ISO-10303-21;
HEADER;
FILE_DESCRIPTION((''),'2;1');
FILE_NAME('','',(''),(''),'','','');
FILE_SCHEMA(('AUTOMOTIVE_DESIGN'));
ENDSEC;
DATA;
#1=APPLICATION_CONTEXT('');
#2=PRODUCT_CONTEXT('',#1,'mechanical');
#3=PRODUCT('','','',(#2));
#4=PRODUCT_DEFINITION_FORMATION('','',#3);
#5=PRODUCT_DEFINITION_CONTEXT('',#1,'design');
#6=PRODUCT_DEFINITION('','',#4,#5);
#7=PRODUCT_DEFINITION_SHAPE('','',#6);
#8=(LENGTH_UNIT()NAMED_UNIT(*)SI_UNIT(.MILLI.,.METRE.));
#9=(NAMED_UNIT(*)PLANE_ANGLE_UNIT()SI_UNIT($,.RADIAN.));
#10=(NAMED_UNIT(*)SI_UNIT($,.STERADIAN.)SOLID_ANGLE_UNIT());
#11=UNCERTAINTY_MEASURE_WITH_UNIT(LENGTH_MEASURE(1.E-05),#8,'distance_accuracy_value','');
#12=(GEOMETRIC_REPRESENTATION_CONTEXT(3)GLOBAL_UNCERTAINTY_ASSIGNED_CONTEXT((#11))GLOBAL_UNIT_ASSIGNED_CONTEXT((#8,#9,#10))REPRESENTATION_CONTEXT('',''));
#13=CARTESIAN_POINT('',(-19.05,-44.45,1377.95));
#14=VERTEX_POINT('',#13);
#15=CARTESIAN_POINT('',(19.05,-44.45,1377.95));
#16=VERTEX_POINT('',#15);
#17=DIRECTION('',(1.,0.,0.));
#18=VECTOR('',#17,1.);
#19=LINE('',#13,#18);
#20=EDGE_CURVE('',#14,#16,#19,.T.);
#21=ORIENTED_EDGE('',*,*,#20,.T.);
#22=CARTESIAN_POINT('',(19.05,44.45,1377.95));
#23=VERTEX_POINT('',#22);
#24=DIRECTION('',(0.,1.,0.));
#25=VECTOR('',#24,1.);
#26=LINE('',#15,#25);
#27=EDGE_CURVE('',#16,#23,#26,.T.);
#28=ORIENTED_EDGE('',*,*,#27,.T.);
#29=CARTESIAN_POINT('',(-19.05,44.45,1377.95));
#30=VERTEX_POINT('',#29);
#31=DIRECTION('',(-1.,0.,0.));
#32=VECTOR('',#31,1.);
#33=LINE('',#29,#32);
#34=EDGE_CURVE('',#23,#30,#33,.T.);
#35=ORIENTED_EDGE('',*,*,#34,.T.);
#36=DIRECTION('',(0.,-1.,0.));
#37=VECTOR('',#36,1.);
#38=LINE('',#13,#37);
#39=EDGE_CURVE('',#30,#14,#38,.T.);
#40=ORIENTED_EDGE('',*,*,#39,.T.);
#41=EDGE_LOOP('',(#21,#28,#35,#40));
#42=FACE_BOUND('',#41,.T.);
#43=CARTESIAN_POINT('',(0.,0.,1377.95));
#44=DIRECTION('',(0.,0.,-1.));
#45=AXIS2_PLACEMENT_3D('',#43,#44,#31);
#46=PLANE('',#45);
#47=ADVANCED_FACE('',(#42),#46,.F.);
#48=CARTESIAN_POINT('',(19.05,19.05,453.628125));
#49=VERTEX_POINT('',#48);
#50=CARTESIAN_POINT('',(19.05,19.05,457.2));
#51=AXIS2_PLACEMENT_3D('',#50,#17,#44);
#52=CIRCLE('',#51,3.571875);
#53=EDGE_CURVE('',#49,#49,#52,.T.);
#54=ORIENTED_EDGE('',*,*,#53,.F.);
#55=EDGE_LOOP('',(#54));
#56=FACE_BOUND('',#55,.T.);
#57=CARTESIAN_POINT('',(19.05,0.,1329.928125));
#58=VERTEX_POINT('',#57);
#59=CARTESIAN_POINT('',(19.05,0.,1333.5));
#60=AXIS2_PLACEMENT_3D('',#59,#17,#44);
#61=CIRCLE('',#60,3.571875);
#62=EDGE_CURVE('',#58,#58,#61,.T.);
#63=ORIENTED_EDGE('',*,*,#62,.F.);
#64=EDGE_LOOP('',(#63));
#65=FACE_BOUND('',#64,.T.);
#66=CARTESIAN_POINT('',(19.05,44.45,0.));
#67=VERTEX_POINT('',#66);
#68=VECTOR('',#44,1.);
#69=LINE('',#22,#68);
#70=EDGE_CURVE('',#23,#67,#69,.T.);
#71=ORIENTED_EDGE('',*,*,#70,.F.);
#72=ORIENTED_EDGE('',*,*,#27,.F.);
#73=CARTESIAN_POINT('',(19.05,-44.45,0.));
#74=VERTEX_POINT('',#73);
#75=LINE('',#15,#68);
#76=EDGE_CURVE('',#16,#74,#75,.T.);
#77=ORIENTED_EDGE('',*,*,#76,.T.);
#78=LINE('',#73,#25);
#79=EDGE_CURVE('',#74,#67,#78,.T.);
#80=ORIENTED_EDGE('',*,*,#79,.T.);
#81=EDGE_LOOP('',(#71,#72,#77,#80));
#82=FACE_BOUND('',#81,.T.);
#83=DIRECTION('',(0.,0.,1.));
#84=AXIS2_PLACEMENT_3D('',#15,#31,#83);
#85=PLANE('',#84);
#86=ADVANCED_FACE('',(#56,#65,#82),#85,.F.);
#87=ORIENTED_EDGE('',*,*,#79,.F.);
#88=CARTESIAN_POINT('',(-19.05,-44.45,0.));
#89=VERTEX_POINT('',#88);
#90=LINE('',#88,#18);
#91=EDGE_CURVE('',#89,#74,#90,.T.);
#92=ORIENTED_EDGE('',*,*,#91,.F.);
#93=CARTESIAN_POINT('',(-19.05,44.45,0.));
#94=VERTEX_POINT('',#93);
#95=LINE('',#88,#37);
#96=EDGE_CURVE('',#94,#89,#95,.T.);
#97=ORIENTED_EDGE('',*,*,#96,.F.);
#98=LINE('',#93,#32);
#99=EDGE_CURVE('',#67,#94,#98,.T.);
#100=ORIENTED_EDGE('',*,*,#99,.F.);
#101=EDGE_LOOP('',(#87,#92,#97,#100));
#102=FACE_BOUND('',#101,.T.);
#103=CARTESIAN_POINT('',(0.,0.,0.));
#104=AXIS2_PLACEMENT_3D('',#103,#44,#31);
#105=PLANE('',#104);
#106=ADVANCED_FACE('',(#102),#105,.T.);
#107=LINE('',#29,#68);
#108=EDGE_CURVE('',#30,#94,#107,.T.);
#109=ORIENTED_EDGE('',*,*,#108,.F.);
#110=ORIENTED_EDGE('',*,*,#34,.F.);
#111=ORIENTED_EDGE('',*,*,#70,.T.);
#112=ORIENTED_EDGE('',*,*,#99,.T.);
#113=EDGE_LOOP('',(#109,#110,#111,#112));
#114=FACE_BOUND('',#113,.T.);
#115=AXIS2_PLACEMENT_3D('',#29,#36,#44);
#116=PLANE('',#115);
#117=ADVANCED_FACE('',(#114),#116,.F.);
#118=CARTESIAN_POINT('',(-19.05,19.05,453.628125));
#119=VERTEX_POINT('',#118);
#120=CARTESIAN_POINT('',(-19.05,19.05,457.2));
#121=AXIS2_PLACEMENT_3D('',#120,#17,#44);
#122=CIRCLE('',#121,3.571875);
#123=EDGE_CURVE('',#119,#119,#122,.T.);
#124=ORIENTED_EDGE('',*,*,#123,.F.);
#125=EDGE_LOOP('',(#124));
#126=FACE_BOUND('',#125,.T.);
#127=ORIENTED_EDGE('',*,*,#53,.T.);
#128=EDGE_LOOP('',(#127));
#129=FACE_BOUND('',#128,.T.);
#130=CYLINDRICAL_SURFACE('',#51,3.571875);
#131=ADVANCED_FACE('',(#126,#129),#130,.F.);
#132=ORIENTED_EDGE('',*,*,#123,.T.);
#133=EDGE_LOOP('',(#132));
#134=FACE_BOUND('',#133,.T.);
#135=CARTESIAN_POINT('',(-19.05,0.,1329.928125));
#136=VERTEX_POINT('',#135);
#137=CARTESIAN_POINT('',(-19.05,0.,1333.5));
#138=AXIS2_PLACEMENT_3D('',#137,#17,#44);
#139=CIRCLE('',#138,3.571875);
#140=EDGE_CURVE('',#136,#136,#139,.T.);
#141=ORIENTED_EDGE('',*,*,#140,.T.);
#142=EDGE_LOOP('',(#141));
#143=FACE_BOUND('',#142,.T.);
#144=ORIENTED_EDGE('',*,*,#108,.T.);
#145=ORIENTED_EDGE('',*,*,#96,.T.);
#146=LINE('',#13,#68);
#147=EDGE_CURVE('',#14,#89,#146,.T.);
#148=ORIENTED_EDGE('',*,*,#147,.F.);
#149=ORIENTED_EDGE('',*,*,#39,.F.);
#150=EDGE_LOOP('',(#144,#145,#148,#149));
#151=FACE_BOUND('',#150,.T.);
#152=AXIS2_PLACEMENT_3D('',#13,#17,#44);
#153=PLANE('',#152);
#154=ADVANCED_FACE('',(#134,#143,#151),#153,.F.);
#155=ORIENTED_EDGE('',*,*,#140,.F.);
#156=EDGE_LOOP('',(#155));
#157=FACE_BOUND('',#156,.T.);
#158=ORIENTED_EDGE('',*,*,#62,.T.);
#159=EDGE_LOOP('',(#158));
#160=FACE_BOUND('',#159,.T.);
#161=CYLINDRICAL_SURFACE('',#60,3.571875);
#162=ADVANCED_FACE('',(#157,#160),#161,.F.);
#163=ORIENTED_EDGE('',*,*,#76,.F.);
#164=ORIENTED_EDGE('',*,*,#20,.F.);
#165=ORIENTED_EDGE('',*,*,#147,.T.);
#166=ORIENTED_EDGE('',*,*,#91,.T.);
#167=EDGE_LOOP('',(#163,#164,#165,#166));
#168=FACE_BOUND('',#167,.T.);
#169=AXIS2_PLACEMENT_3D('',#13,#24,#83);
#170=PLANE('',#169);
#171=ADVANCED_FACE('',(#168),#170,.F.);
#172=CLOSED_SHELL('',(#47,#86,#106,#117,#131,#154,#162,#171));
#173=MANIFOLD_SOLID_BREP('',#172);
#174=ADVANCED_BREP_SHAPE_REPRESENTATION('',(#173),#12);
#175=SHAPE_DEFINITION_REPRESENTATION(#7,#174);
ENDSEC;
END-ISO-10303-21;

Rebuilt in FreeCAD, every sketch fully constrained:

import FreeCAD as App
import Part
import Sketcher
from FreeCAD import Vector
Q = App.Units.Quantity


def add_polygon(sketch, points):
    """Adds a closed chain of lines whose ends are joined by coincident constraints."""
    first, n = sketch.GeometryCount, len(points)
    for a, b in zip(points, points[1:] + points[:1]):
        sketch.addGeometry(Part.LineSegment(App.Vector(*a, 0), App.Vector(*b, 0)), False)
    for i in range(n):
        sketch.addConstraint(Sketcher.Constraint("Coincident", first + i, 2, first + (i + 1) % n, 1))

doc = App.newDocument("Part")
body = doc.addObject("PartDesign::Body", "Body")

sketch1 = body.newObject("Sketcher::SketchObject", "Sketch")
sketch1.AttachmentSupport = (doc.getObject("XY_Plane"), [""])
sketch1.MapMode = "FlatFace"
add_polygon(sketch1, [(-19, 44), (-19, -44), (19, -44), (19, 44)])
sketch1.addConstraint(Sketcher.Constraint("Vertical", 0))
sketch1.addConstraint(Sketcher.Constraint("Horizontal", 1))
sketch1.addConstraint(Sketcher.Constraint("Vertical", 2))
sketch1.addConstraint(Sketcher.Constraint("Horizontal", 3))
sketch1.addConstraint(Sketcher.Constraint("Symmetric", 0, 2, 2, 2, -1, 1))
sketch1.addConstraint(Sketcher.Constraint("DistanceX", 1, 1, 1, 2, Q("1.5 in")))
sketch1.addConstraint(Sketcher.Constraint("DistanceY", 0, 2, 0, 1, Q("3.5 in")))
pad1 = body.newObject("PartDesign::Pad", "Pad")
pad1.Profile = sketch1
pad1.Length = Q("54.25 in")

sketch2 = body.newObject("Sketcher::SketchObject", "Sketch001")
sketch2.AttachmentSupport = (doc.getObject("YZ_Plane"), [""])
sketch2.MapMode = "FlatFace"
sketch2.AttachmentOffset = App.Placement(Vector(0, 0, 0.75 * 25.4), App.Rotation())
sketch2.addGeometry(Part.Circle(Vector(0, 1333.5, 0), Vector(0, 0, 1), 3.6), False)
sketch2.addGeometry(Part.Circle(Vector(19.1, 457.2, 0), Vector(0, 0, 1), 3.6), False)
sketch2.addConstraint(Sketcher.Constraint("Equal", 0, 1))
sketch2.addConstraint(Sketcher.Constraint("PointOnObject", 0, 3, -2))
sketch2.addConstraint(Sketcher.Constraint("Diameter", 0, Q("0.28125 in")))
sketch2.addConstraint(Sketcher.Constraint("DistanceY", -1, 1, 1, 3, Q("18 in")))
sketch2.addConstraint(Sketcher.Constraint("DistanceY", -1, 1, 0, 3, Q("52.5 in")))
sketch2.addConstraint(Sketcher.Constraint("DistanceX", -1, 1, 1, 3, Q("0.75 in")))
doc.recompute()
hole = body.newObject("PartDesign::Hole", "Hole")
hole.Profile = sketch2
hole.ThreadType = "None"
hole.Diameter = Q("0.28125 in")
hole.DepthType = "ThroughAll"

doc.recompute()
